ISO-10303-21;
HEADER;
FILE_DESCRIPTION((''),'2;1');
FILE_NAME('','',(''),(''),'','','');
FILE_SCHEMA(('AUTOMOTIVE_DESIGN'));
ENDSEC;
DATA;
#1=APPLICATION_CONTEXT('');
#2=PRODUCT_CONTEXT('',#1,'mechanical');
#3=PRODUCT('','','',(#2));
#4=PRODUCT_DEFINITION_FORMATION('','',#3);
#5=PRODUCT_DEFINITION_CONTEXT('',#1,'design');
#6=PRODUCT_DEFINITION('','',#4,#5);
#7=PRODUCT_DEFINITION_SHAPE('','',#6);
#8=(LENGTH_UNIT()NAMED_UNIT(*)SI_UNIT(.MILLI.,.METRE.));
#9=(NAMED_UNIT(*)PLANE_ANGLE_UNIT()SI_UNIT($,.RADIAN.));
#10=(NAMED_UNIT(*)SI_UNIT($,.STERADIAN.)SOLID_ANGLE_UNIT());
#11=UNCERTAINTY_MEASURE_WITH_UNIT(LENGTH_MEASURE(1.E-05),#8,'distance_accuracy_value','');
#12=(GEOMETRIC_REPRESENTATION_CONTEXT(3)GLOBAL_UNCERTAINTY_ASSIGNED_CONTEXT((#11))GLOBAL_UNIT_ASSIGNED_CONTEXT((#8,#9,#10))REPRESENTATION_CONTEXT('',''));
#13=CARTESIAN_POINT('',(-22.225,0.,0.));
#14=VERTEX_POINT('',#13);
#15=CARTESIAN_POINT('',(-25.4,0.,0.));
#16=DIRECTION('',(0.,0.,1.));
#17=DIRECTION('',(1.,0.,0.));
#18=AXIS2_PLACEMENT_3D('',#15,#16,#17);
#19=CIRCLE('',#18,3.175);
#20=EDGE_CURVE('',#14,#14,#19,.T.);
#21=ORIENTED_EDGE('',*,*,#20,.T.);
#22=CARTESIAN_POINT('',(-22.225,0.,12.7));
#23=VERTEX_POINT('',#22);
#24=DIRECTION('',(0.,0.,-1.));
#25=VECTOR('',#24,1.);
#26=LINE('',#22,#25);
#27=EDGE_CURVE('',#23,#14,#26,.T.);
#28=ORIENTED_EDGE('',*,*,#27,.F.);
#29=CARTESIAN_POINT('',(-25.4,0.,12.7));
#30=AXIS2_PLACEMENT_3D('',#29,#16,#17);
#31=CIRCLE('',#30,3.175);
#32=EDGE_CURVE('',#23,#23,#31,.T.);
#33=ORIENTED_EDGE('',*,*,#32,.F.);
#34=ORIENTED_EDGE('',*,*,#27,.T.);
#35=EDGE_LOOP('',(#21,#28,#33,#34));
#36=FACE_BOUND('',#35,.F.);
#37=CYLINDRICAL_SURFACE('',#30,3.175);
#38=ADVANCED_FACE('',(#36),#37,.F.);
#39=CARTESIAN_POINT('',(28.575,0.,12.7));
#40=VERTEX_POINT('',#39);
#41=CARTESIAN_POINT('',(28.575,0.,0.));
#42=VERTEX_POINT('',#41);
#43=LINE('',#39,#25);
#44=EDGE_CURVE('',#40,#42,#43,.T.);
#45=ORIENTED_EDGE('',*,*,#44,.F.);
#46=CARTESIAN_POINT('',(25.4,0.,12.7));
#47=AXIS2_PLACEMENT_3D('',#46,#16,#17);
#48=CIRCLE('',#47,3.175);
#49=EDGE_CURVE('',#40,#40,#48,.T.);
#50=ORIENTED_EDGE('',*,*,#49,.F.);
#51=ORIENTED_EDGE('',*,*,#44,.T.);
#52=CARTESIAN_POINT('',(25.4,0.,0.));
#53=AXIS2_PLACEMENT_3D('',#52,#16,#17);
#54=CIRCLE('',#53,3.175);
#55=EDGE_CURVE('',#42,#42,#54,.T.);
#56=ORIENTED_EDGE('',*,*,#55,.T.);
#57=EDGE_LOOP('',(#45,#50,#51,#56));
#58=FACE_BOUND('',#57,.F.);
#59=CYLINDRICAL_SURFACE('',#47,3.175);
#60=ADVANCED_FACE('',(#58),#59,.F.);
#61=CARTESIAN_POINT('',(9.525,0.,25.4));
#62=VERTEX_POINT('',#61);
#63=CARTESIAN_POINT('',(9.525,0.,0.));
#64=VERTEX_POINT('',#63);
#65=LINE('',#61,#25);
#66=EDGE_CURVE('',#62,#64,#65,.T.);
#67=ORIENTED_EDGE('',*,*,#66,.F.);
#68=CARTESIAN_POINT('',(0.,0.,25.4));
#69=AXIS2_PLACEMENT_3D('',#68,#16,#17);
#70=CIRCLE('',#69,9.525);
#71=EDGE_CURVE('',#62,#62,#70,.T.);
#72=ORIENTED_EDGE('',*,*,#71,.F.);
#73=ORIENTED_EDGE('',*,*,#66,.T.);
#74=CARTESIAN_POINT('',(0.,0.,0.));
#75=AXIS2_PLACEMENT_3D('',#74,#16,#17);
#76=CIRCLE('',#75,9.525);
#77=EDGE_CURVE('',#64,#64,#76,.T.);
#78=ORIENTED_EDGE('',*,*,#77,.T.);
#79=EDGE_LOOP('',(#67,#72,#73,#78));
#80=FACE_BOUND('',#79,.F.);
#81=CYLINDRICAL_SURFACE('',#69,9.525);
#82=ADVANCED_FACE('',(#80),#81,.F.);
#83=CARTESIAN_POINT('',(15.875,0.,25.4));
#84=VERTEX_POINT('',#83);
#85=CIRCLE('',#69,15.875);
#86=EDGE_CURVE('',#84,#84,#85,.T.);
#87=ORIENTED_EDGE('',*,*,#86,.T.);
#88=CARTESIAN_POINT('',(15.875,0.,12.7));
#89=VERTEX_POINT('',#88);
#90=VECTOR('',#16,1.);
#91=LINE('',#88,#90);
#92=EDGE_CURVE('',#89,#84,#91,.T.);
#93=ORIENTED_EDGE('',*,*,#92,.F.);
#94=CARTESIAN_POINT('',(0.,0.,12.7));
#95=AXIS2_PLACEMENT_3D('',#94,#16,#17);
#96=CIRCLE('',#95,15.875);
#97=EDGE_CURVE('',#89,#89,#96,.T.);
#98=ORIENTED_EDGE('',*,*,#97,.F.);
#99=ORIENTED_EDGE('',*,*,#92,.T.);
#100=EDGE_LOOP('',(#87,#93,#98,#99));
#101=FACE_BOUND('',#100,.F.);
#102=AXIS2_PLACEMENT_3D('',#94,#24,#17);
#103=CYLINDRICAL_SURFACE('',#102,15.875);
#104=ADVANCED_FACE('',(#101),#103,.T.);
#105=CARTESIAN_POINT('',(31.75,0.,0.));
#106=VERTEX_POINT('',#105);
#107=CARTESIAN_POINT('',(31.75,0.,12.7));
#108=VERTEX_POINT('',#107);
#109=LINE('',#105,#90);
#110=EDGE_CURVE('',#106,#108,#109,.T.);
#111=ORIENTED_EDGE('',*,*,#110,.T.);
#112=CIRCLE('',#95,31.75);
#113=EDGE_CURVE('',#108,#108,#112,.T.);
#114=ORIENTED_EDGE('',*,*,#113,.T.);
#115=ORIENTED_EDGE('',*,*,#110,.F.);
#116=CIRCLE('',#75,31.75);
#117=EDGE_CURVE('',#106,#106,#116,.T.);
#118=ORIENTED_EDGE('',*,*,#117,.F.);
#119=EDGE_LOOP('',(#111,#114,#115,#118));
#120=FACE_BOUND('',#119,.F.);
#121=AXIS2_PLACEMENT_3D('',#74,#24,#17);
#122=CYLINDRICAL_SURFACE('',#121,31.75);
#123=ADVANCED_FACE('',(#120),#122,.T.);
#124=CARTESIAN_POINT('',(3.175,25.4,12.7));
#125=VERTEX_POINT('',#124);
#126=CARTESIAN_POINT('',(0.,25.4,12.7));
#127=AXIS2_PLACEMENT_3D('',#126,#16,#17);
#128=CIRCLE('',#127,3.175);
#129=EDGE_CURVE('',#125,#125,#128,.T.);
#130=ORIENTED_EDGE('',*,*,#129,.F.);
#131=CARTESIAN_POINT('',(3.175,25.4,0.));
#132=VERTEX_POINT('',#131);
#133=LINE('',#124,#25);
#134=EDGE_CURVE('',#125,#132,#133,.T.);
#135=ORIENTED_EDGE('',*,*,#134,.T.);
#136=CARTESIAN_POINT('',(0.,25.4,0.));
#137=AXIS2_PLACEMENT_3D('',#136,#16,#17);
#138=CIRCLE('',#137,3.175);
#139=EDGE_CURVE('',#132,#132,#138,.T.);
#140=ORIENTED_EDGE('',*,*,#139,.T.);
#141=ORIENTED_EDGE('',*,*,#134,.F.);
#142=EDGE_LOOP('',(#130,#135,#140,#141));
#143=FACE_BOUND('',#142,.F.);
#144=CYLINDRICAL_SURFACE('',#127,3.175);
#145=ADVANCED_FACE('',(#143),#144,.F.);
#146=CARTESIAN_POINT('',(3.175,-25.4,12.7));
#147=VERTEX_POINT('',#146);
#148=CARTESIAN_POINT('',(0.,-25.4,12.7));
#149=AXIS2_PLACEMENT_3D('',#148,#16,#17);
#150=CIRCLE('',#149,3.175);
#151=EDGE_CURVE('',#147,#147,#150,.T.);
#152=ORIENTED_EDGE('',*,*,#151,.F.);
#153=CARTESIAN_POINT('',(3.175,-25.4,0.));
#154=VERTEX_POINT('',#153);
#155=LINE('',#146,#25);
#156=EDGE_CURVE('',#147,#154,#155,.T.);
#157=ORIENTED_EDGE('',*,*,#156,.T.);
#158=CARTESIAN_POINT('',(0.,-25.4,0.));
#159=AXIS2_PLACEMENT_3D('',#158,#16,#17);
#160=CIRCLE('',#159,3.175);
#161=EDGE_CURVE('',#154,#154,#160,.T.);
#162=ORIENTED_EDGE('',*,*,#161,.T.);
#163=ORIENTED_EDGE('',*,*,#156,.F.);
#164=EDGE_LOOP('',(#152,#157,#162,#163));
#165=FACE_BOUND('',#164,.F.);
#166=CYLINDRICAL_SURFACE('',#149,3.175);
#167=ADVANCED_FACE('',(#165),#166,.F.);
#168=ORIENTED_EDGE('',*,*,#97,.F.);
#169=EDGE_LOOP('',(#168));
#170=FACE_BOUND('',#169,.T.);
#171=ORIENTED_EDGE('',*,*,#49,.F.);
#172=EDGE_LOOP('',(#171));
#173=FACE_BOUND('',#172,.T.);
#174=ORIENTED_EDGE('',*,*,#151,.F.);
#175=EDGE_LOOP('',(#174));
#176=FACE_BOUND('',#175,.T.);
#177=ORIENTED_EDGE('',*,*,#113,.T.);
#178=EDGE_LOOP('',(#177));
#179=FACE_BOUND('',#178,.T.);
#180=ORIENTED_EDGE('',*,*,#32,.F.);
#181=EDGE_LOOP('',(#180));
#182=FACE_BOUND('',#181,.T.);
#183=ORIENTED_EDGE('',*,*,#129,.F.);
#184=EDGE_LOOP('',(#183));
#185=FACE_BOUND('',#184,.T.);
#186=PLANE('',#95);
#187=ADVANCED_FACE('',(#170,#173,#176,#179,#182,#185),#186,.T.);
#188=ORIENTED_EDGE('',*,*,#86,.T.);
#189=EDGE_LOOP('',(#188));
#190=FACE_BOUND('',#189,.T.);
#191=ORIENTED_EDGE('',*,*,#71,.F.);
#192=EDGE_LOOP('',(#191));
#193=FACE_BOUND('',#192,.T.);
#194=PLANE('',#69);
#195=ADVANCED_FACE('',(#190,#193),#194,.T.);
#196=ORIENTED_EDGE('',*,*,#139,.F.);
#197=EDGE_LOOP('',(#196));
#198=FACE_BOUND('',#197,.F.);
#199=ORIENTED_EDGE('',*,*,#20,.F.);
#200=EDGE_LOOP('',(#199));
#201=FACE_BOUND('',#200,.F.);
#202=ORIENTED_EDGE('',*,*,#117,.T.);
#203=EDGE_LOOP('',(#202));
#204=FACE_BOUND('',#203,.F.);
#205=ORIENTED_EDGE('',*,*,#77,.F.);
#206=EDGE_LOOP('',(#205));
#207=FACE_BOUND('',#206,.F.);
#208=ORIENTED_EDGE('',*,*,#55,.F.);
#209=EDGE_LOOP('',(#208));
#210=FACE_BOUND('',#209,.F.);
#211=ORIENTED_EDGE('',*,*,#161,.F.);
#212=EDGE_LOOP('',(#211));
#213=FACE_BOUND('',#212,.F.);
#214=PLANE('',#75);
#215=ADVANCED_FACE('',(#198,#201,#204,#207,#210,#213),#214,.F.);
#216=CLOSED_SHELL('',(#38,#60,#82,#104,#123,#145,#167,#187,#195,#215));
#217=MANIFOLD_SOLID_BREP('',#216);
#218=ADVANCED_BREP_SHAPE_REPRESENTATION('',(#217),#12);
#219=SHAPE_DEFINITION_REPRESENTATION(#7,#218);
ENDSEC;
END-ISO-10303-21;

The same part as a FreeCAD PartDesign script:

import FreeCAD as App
import Part
import Sketcher
Q = App.Units.Quantity

doc = App.newDocument("Part")
body = doc.addObject("PartDesign::Body", "Body")

# Sketch on XY plane
sketch1 = body.newObject("Sketcher::SketchObject", "Sketch")
sketch1.AttachmentSupport = (doc.getObject("XY_Plane"), [""])
sketch1.MapMode = "FlatFace"
sketch1.addGeometry(Part.Circle(App.Vector(0, 0, 0), App.Vector(0, 0, 1), 32), False)
sketch1.addConstraint([
    Sketcher.Constraint("Coincident", 0, 3, -1, 1),
    Sketcher.Constraint("Diameter", 0, Q("2.5 in")),
])
pad1 = body.newObject("PartDesign::Pad", "Pad")
pad1.Profile = sketch1
pad1.Length = Q("0.5 in")

# Sketch on XY plane
sketch2 = body.newObject("Sketcher::SketchObject", "Sketch001")
sketch2.AttachmentSupport = (doc.getObject("XY_Plane"), [""])
sketch2.MapMode = "FlatFace"
sketch2.AttachmentOffset = App.Placement(App.Vector(0, 0, 0.5 * 25.4), App.Rotation())
sketch2.addGeometry(Part.Circle(App.Vector(0, 0, 0), App.Vector(0, 0, 1), 16), False)
sketch2.addConstraint([
    Sketcher.Constraint("Coincident", 0, 3, -1, 1),
    Sketcher.Constraint("Diameter", 0, Q("1.25 in")),
])
pad2 = body.newObject("PartDesign::Pad", "Pad001")
pad2.Profile = sketch2
pad2.Length = Q("0.5 in")

# Sketch on XY plane
sketch3 = body.newObject("Sketcher::SketchObject", "Sketch002")
sketch3.AttachmentSupport = (doc.getObject("XY_Plane"), [""])
sketch3.MapMode = "FlatFace"
sketch3.AttachmentOffset = App.Placement(App.Vector(0, 0, 1 * 25.4), App.Rotation())
sketch3.addGeometry(Part.Circle(App.Vector(0, 0, 0), App.Vector(0, 0, 1), 10), False)
sketch3.addConstraint([
    Sketcher.Constraint("Coincident", 0, 3, -1, 1),
    Sketcher.Constraint("Diameter", 0, Q("0.75 in")),
])
pocket1 = body.newObject("PartDesign::Pocket", "Pocket")
pocket1.Profile = sketch3
pocket1.Type = "ThroughAll"

# Sketch on XY plane
sketch4 = body.newObject("Sketcher::SketchObject", "Sketch003")
sketch4.AttachmentSupport = (doc.getObject("XY_Plane"), [""])
sketch4.MapMode = "FlatFace"
sketch4.AttachmentOffset = App.Placement(App.Vector(0, 0, 0.5 * 25.4), App.Rotation())
sketch4.addGeometry([
    Part.Circle(App.Vector(0, 25.4, 0), App.Vector(0, 0, 1), 3.2),
    Part.Circle(App.Vector(0, -25.4, 0), App.Vector(0, 0, 1), 3.2),
    Part.Circle(App.Vector(25.4, 0, 0), App.Vector(0, 0, 1), 3.2),
    Part.Circle(App.Vector(-25.4, 0, 0), App.Vector(0, 0, 1), 3.2),
], False)
sketch4.addConstraint([
    Sketcher.Constraint("Equal", 0, 1),
    Sketcher.Constraint("Equal", 1, 2),
    Sketcher.Constraint("Equal", 2, 3),
    Sketcher.Constraint("Symmetric", 0, 3, 1, 3, -1, 1),
    Sketcher.Constraint("Symmetric", 2, 3, 3, 3, -1, 1),
    Sketcher.Constraint("PointOnObject", 0, 3, -2),
    Sketcher.Constraint("PointOnObject", 2, 3, -1),
    Sketcher.Constraint("Diameter", 0, Q("0.25 in")),
    Sketcher.Constraint("DistanceY", -1, 1, 0, 3, Q("1 in")),
    Sketcher.Constraint("DistanceX", -1, 1, 2, 3, Q("1 in")),
])
pocket2 = body.newObject("PartDesign::Pocket", "Pocket001")
pocket2.Profile = sketch4
pocket2.Type = "ThroughAll"

doc.recompute()
